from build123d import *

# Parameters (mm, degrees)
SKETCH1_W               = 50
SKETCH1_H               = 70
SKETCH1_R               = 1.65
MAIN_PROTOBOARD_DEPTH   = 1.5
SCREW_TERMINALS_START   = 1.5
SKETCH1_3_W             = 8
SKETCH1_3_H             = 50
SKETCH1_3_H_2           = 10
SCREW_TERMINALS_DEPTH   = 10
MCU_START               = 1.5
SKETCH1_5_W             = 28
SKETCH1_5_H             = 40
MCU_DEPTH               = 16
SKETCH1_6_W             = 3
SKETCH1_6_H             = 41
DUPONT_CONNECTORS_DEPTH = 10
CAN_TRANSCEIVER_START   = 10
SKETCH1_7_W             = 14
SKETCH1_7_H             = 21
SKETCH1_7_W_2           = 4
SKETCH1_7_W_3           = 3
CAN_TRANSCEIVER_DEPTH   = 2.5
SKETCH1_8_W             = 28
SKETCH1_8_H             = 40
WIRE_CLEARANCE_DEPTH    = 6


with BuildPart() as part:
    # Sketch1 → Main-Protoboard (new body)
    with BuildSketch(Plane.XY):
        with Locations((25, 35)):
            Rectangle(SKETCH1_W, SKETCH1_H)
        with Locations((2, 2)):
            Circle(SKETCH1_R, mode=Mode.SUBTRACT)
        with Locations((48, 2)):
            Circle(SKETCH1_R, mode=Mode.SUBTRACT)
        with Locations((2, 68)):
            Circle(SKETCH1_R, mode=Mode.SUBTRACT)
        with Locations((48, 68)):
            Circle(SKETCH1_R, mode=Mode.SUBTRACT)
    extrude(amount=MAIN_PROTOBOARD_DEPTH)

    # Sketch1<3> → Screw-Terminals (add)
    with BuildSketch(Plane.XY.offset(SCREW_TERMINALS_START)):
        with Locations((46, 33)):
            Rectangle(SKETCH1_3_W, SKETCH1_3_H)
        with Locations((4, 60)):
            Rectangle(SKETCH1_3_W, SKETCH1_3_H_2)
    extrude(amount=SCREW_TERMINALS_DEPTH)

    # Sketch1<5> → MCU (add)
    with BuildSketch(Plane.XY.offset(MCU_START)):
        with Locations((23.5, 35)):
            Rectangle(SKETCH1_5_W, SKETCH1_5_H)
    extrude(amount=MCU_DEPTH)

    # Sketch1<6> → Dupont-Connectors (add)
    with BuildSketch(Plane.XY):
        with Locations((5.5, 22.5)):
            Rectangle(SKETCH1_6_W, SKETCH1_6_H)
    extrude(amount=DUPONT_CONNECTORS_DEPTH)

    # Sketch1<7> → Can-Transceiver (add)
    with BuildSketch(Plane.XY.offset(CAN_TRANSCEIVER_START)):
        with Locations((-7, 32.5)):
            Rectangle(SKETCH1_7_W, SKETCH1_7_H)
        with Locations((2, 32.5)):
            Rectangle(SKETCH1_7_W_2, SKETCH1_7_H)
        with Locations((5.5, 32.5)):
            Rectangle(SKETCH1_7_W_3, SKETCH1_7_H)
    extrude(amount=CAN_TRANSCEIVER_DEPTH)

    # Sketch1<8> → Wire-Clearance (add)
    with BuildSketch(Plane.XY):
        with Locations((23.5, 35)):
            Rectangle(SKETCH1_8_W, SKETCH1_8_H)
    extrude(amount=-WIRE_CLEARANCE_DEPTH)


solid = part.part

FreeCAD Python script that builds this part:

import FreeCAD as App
import Part
import Sketcher

V = App.Vector

doc = App.newDocument("Part")
params = doc.addObject("Spreadsheet::Sheet", "Params")
for row, (alias, value) in enumerate([
    ("sketch1_diameter", "3.3 mm"),
    ("sketch1_width", "50 mm"),
    ("sketch1_height", "70 mm"),
    ("pad1_length", "1.5 mm"),
    ("sketch2_width", "8 mm"),
    ("sketch2_height", "50 mm"),
    ("sketch2_height2", "10 mm"),
    ("pad2_length", "10 mm"),
    ("sketch3_width", "28 mm"),
    ("sketch3_height", "40 mm"),
    ("pad3_length", "16 mm"),
    ("sketch4_width", "3 mm"),
    ("sketch4_height", "41 mm"),
    ("pad4_length", "10 mm"),
    ("sketch5_width", "21 mm"),
    ("pad5_length", "2.5 mm"),
    ("sketch6_width", "28 mm"),
    ("sketch6_height", "40 mm"),
    ("pad6_length", "6 mm"),
], start=1):
    params.set(f"A{row}", alias)
    params.set(f"B{row}", "=" + value)
    params.setAlias(f"B{row}", alias)

body = doc.addObject("PartDesign::Body", "Body")

sketch1 = body.newObject("Sketcher::SketchObject", "Sketch")
sketch1.AttachmentSupport = (doc.getObject("XY_Plane"), [""])
sketch1.MapMode = "FlatFace"
sketch1.addGeometry(Part.LineSegment(V(0, 70, 0), V(0, 0, 0)), False)
sketch1.addGeometry(Part.LineSegment(V(0, 0, 0), V(50, 0, 0)), False)
sketch1.addGeometry(Part.LineSegment(V(50, 0, 0), V(50, 70, 0)), False)
sketch1.addGeometry(Part.LineSegment(V(50, 70, 0), V(0, 70, 0)), False)
sketch1.addGeometry(Part.Circle(V(2, 2, 0), V(0, 0, 1), 1.6), False)
sketch1.addGeometry(Part.Circle(V(48, 2, 0), V(0, 0, 1), 1.6), False)
sketch1.addGeometry(Part.Circle(V(2, 68, 0), V(0, 0, 1), 1.6), False)
sketch1.addGeometry(Part.Circle(V(48, 68, 0), V(0, 0, 1), 1.6), False)
sketch1.addConstraint(Sketcher.Constraint("Coincident", 0, 2, 1, 1))
sketch1.addConstraint(Sketcher.Constraint("Coincident", 1, 2, 2, 1))
sketch1.addConstraint(Sketcher.Constraint("Coincident", 2, 2, 3, 1))
sketch1.addConstraint(Sketcher.Constraint("Coincident", 3, 2, 0, 1))
sketch1.addConstraint(Sketcher.Constraint("Vertical", 0))
sketch1.addConstraint(Sketcher.Constraint("Horizontal", 1))
sketch1.addConstraint(Sketcher.Constraint("Vertical", 2))
sketch1.addConstraint(Sketcher.Constraint("Horizontal", 3))
sketch1.addConstraint(Sketcher.Constraint("Coincident", 0, 2, -1, 1))
sketch1.addConstraint(Sketcher.Constraint("Equal", 4, 5))
sketch1.addConstraint(Sketcher.Constraint("Equal", 5, 6))
sketch1.addConstraint(Sketcher.Constraint("Equal", 6, 7))
sketch1.addConstraint(Sketcher.Constraint("Horizontal", 4, 3, 5, 3))
sketch1.addConstraint(Sketcher.Constraint("Horizontal", 6, 3, 7, 3))
sketch1.addConstraint(Sketcher.Constraint("Vertical", 4, 3, 6, 3))
sketch1.addConstraint(Sketcher.Constraint("Vertical", 5, 3, 7, 3))
sketch1.addConstraint(Sketcher.Constraint("Diameter", 4, 3.3))
sketch1.addConstraint(Sketcher.Constraint("DistanceX", 1, 1, 1, 2, 50.0))
sketch1.addConstraint(Sketcher.Constraint("DistanceY", 0, 2, 0, 1, 70.0))
sketch1.addConstraint(Sketcher.Constraint("DistanceX", -1, 1, 4, 3, 2.0))
sketch1.addConstraint(Sketcher.Constraint("DistanceY", -1, 1, 4, 3, 2.0))
sketch1.addConstraint(Sketcher.Constraint("DistanceX", -1, 1, 5, 3, 48.0))
sketch1.addConstraint(Sketcher.Constraint("DistanceY", -1, 1, 6, 3, 68.0))
sketch1.setExpression("Constraints[16]", "Params.sketch1_diameter")
sketch1.setExpression("Constraints[17]", "Params.sketch1_width")
sketch1.setExpression("Constraints[18]", "Params.sketch1_height")
pad1 = body.newObject("PartDesign::Pad", "Pad")
pad1.Profile = sketch1
pad1.setExpression("Length", "Params.pad1_length")

sketch2 = body.newObject("Sketcher::SketchObject", "Sketch001")
sketch2.AttachmentSupport = (doc.getObject("XY_Plane"), [""])
sketch2.MapMode = "FlatFace"
sketch2.AttachmentOffset = App.Placement(V(0, 0, 1.5), App.Rotation())
sketch2.addGeometry(Part.LineSegment(V(42, 58, 0), V(42, 8, 0)), False)
sketch2.addGeometry(Part.LineSegment(V(42, 8, 0), V(50, 8, 0)), False)
sketch2.addGeometry(Part.LineSegment(V(50, 8, 0), V(50, 58, 0)), False)
sketch2.addGeometry(Part.LineSegment(V(50, 58, 0), V(42, 58, 0)), False)
sketch2.addGeometry(Part.LineSegment(V(0, 65, 0), V(0, 55, 0)), False)
sketch2.addGeometry(Part.LineSegment(V(0, 55, 0), V(8, 55, 0)), False)
sketch2.addGeometry(Part.LineSegment(V(8, 55, 0), V(8, 65, 0)), False)
sketch2.addGeometry(Part.LineSegment(V(8, 65, 0), V(0, 65, 0)), False)
sketch2.addConstraint(Sketcher.Constraint("Coincident", 0, 2, 1, 1))
sketch2.addConstraint(Sketcher.Constraint("Coincident", 1, 2, 2, 1))
sketch2.addConstraint(Sketcher.Constraint("Coincident", 2, 2, 3, 1))
sketch2.addConstraint(Sketcher.Constraint("Coincident", 3, 2, 0, 1))
sketch2.addConstraint(Sketcher.Constraint("Coincident", 4, 2, 5, 1))
sketch2.addConstraint(Sketcher.Constraint("Coincident", 5, 2, 6, 1))
sketch2.addConstraint(Sketcher.Constraint("Coincident", 6, 2, 7, 1))
sketch2.addConstraint(Sketcher.Constraint("Coincident", 7, 2, 4, 1))
sketch2.addConstraint(Sketcher.Constraint("Vertical", 0))
sketch2.addConstraint(Sketcher.Constraint("Horizontal", 1))
sketch2.addConstraint(Sketcher.Constraint("Vertical", 2))
sketch2.addConstraint(Sketcher.Constraint("Horizontal", 3))
sketch2.addConstraint(Sketcher.Constraint("Vertical", 4))
sketch2.addConstraint(Sketcher.Constraint("Horizontal", 5))
sketch2.addConstraint(Sketcher.Constraint("Vertical", 6))
sketch2.addConstraint(Sketcher.Constraint("Horizontal", 7))
sketch2.addConstraint(Sketcher.Constraint("PointOnObject", 4, 2, -2))
sketch2.addConstraint(Sketcher.Constraint("Equal", 3, 5))
sketch2.addConstraint(Sketcher.Constraint("DistanceX", 1, 1, 1, 2, 8.0))
sketch2.addConstraint(Sketcher.Constraint("DistanceY", 0, 2, 0, 1, 50.0))
sketch2.addConstraint(Sketcher.Constraint("DistanceY", 4, 2, 4, 1, 10.0))
sketch2.addConstraint(Sketcher.Constraint("DistanceX", -1, 1, 0, 2, 42.0))
sketch2.addConstraint(Sketcher.Constraint("DistanceY", -1, 1, 0, 2, 8.0))
sketch2.addConstraint(Sketcher.Constraint("DistanceY", -1, 1, 4, 2, 55.0))
sketch2.setExpression("Constraints[18]", "Params.sketch2_width")
sketch2.setExpression("Constraints[19]", "Params.sketch2_height")
sketch2.setExpression("Constraints[20]", "Params.sketch2_height2")
pad2 = body.newObject("PartDesign::Pad", "Pad001")
pad2.Profile = sketch2
pad2.setExpression("Length", "Params.pad2_length")

sketch3 = body.newObject("Sketcher::SketchObject", "Sketch002")
sketch3.AttachmentSupport = (doc.getObject("XY_Plane"), [""])
sketch3.MapMode = "FlatFace"
sketch3.AttachmentOffset = App.Placement(V(0, 0, 1.5), App.Rotation())
sketch3.addGeometry(Part.LineSegment(V(10, 55, 0), V(10, 15, 0)), False)
sketch3.addGeometry(Part.LineSegment(V(10, 15, 0), V(38, 15, 0)), False)
sketch3.addGeometry(Part.LineSegment(V(38, 15, 0), V(38, 55, 0)), False)
sketch3.addGeometry(Part.LineSegment(V(38, 55, 0), V(10, 55, 0)), False)
sketch3.addConstraint(Sketcher.Constraint("Coincident", 0, 2, 1, 1))
sketch3.addConstraint(Sketcher.Constraint("Coincident", 1, 2, 2, 1))
sketch3.addConstraint(Sketcher.Constraint("Coincident", 2, 2, 3, 1))
sketch3.addConstraint(Sketcher.Constraint("Coincident", 3, 2, 0, 1))
sketch3.addConstraint(Sketcher.Constraint("Vertical", 0))
sketch3.addConstraint(Sketcher.Constraint("Horizontal", 1))
sketch3.addConstraint(Sketcher.Constraint("Vertical", 2))
sketch3.addConstraint(Sketcher.Constraint("Horizontal", 3))
sketch3.addConstraint(Sketcher.Constraint("DistanceX", 1, 1, 1, 2, 28.0))
sketch3.addConstraint(Sketcher.Constraint("DistanceY", 0, 2, 0, 1, 40.0))
sketch3.addConstraint(Sketcher.Constraint("DistanceY", -1, 1, 0, 2, 15.0))
sketch3.addConstraint(Sketcher.Constraint("DistanceX", -1, 1, 0, 2, 9.5))
sketch3.setExpression("Constraints[8]", "Params.sketch3_width")
sketch3.setExpression("Constraints[9]", "Params.sketch3_height")
pad3 = body.newObject("PartDesign::Pad", "Pad002")
pad3.Profile = sketch3
pad3.setExpression("Length", "Params.pad3_length")

sketch4 = body.newObject("Sketcher::SketchObject", "Sketch003")
sketch4.AttachmentSupport = (doc.getObject("XY_Plane"), [""])
sketch4.MapMode = "FlatFace"
sketch4.addGeometry(Part.LineSegment(V(4, 43, 0), V(4, 2, 0)), False)
sketch4.addGeometry(Part.LineSegment(V(4, 2, 0), V(7, 2, 0)), False)
sketch4.addGeometry(Part.LineSegment(V(7, 2, 0), V(7, 43, 0)), False)
sketch4.addGeometry(Part.LineSegment(V(7, 43, 0), V(4, 43, 0)), False)
sketch4.addConstraint(Sketcher.Constraint("Coincident", 0, 2, 1, 1))
sketch4.addConstraint(Sketcher.Constraint("Coincident", 1, 2, 2, 1))
sketch4.addConstraint(Sketcher.Constraint("Coincident", 2, 2, 3, 1))
sketch4.addConstraint(Sketcher.Constraint("Coincident", 3, 2, 0, 1))
sketch4.addConstraint(Sketcher.Constraint("Vertical", 0))
sketch4.addConstraint(Sketcher.Constraint("Horizontal", 1))
sketch4.addConstraint(Sketcher.Constraint("Vertical", 2))
sketch4.addConstraint(Sketcher.Constraint("Horizontal", 3))
sketch4.addConstraint(Sketcher.Constraint("DistanceX", 1, 1, 1, 2, 3.0))
sketch4.addConstraint(Sketcher.Constraint("DistanceY", 0, 2, 0, 1, 41.0))
sketch4.addConstraint(Sketcher.Constraint("DistanceX", -1, 1, 0, 2, 4.0))
sketch4.addConstraint(Sketcher.Constraint("DistanceY", -1, 1, 0, 2, 2.0))
sketch4.setExpression("Constraints[8]", "Params.sketch4_width")
sketch4.setExpression("Constraints[9]", "Params.sketch4_height")
pad4 = body.newObject("PartDesign::Pad", "Pad003")
pad4.Profile = sketch4
pad4.setExpression("Length", "Params.pad4_length")

sketch5 = body.newObject("Sketcher::SketchObject", "Sketch004")
sketch5.AttachmentSupport = (doc.getObject("XY_Plane"), [""])
sketch5.MapMode = "FlatFace"
sketch5.AttachmentOffset = App.Placement(V(0, 0, 10), App.Rotation())
sketch5.addGeometry(Part.LineSegment(V(-14, 43, 0), V(-14, 22, 0)), False)
sketch5.addGeometry(Part.LineSegment(V(-14, 22, 0), V(7, 22, 0)), False)
sketch5.addGeometry(Part.LineSegment(V(7, 22, 0), V(7, 43, 0)), False)
sketch5.addGeometry(Part.LineSegment(V(7, 43, 0), V(-14, 43, 0)), False)
sketch5.addConstraint(Sketcher.Constraint("Coincident", 0, 2, 1, 1))
sketch5.addConstraint(Sketcher.Constraint("Coincident", 1, 2, 2, 1))
sketch5.addConstraint(Sketcher.Constraint("Coincident", 2, 2, 3, 1))
sketch5.addConstraint(Sketcher.Constraint("Coincident", 3, 2, 0, 1))
sketch5.addConstraint(Sketcher.Constraint("Vertical", 0))
sketch5.addConstraint(Sketcher.Constraint("Horizontal", 1))
sketch5.addConstraint(Sketcher.Constraint("Vertical", 2))
sketch5.addConstraint(Sketcher.Constraint("Horizontal", 3))
sketch5.addConstraint(Sketcher.Constraint("Equal", 3, 0))
sketch5.addConstraint(Sketcher.Constraint("DistanceX", 1, 1, 1, 2, 21.0))
sketch5.addConstraint(Sketcher.Constraint("DistanceX", 0, 2, -1, 1, 14.0))
sketch5.addConstraint(Sketcher.Constraint("DistanceY", -1, 1, 0, 2, 22.0))
sketch5.setExpression("Constraints[9]", "Params.sketch5_width")
pad5 = body.newObject("PartDesign::Pad", "Pad004")
pad5.Profile = sketch5
pad5.setExpression("Length", "Params.pad5_length")

sketch6 = body.newObject("Sketcher::SketchObject", "Sketch005")
sketch6.AttachmentSupport = (doc.getObject("XY_Plane"), [""])
sketch6.MapMode = "FlatFace"
sketch6.addGeometry(Part.LineSegment(V(10, 55, 0), V(10, 15, 0)), False)
sketch6.addGeometry(Part.LineSegment(V(10, 15, 0), V(38, 15, 0)), False)
sketch6.addGeometry(Part.LineSegment(V(38, 15, 0), V(38, 55, 0)), False)
sketch6.addGeometry(Part.LineSegment(V(38, 55, 0), V(10, 55, 0)), False)
sketch6.addConstraint(Sketcher.Constraint("Coincident", 0, 2, 1, 1))
sketch6.addConstraint(Sketcher.Constraint("Coincident", 1, 2, 2, 1))
sketch6.addConstraint(Sketcher.Constraint("Coincident", 2, 2, 3, 1))
sketch6.addConstraint(Sketcher.Constraint("Coincident", 3, 2, 0, 1))
sketch6.addConstraint(Sketcher.Constraint("Vertical", 0))
sketch6.addConstraint(Sketcher.Constraint("Horizontal", 1))
sketch6.addConstraint(Sketcher.Constraint("Vertical", 2))
sketch6.addConstraint(Sketcher.Constraint("Horizontal", 3))
sketch6.addConstraint(Sketcher.Constraint("DistanceX", 1, 1, 1, 2, 28.0))
sketch6.addConstraint(Sketcher.Constraint("DistanceY", 0, 2, 0, 1, 40.0))
sketch6.addConstraint(Sketcher.Constraint("DistanceY", -1, 1, 0, 2, 15.0))
sketch6.addConstraint(Sketcher.Constraint("DistanceX", -1, 1, 0, 2, 9.5))
sketch6.setExpression("Constraints[8]", "Params.sketch6_width")
sketch6.setExpression("Constraints[9]", "Params.sketch6_height")
pad6 = body.newObject("PartDesign::Pad", "Pad005")
pad6.Profile = sketch6
pad6.setExpression("Length", "Params.pad6_length")
pad6.Reversed = True

doc.recompute()
